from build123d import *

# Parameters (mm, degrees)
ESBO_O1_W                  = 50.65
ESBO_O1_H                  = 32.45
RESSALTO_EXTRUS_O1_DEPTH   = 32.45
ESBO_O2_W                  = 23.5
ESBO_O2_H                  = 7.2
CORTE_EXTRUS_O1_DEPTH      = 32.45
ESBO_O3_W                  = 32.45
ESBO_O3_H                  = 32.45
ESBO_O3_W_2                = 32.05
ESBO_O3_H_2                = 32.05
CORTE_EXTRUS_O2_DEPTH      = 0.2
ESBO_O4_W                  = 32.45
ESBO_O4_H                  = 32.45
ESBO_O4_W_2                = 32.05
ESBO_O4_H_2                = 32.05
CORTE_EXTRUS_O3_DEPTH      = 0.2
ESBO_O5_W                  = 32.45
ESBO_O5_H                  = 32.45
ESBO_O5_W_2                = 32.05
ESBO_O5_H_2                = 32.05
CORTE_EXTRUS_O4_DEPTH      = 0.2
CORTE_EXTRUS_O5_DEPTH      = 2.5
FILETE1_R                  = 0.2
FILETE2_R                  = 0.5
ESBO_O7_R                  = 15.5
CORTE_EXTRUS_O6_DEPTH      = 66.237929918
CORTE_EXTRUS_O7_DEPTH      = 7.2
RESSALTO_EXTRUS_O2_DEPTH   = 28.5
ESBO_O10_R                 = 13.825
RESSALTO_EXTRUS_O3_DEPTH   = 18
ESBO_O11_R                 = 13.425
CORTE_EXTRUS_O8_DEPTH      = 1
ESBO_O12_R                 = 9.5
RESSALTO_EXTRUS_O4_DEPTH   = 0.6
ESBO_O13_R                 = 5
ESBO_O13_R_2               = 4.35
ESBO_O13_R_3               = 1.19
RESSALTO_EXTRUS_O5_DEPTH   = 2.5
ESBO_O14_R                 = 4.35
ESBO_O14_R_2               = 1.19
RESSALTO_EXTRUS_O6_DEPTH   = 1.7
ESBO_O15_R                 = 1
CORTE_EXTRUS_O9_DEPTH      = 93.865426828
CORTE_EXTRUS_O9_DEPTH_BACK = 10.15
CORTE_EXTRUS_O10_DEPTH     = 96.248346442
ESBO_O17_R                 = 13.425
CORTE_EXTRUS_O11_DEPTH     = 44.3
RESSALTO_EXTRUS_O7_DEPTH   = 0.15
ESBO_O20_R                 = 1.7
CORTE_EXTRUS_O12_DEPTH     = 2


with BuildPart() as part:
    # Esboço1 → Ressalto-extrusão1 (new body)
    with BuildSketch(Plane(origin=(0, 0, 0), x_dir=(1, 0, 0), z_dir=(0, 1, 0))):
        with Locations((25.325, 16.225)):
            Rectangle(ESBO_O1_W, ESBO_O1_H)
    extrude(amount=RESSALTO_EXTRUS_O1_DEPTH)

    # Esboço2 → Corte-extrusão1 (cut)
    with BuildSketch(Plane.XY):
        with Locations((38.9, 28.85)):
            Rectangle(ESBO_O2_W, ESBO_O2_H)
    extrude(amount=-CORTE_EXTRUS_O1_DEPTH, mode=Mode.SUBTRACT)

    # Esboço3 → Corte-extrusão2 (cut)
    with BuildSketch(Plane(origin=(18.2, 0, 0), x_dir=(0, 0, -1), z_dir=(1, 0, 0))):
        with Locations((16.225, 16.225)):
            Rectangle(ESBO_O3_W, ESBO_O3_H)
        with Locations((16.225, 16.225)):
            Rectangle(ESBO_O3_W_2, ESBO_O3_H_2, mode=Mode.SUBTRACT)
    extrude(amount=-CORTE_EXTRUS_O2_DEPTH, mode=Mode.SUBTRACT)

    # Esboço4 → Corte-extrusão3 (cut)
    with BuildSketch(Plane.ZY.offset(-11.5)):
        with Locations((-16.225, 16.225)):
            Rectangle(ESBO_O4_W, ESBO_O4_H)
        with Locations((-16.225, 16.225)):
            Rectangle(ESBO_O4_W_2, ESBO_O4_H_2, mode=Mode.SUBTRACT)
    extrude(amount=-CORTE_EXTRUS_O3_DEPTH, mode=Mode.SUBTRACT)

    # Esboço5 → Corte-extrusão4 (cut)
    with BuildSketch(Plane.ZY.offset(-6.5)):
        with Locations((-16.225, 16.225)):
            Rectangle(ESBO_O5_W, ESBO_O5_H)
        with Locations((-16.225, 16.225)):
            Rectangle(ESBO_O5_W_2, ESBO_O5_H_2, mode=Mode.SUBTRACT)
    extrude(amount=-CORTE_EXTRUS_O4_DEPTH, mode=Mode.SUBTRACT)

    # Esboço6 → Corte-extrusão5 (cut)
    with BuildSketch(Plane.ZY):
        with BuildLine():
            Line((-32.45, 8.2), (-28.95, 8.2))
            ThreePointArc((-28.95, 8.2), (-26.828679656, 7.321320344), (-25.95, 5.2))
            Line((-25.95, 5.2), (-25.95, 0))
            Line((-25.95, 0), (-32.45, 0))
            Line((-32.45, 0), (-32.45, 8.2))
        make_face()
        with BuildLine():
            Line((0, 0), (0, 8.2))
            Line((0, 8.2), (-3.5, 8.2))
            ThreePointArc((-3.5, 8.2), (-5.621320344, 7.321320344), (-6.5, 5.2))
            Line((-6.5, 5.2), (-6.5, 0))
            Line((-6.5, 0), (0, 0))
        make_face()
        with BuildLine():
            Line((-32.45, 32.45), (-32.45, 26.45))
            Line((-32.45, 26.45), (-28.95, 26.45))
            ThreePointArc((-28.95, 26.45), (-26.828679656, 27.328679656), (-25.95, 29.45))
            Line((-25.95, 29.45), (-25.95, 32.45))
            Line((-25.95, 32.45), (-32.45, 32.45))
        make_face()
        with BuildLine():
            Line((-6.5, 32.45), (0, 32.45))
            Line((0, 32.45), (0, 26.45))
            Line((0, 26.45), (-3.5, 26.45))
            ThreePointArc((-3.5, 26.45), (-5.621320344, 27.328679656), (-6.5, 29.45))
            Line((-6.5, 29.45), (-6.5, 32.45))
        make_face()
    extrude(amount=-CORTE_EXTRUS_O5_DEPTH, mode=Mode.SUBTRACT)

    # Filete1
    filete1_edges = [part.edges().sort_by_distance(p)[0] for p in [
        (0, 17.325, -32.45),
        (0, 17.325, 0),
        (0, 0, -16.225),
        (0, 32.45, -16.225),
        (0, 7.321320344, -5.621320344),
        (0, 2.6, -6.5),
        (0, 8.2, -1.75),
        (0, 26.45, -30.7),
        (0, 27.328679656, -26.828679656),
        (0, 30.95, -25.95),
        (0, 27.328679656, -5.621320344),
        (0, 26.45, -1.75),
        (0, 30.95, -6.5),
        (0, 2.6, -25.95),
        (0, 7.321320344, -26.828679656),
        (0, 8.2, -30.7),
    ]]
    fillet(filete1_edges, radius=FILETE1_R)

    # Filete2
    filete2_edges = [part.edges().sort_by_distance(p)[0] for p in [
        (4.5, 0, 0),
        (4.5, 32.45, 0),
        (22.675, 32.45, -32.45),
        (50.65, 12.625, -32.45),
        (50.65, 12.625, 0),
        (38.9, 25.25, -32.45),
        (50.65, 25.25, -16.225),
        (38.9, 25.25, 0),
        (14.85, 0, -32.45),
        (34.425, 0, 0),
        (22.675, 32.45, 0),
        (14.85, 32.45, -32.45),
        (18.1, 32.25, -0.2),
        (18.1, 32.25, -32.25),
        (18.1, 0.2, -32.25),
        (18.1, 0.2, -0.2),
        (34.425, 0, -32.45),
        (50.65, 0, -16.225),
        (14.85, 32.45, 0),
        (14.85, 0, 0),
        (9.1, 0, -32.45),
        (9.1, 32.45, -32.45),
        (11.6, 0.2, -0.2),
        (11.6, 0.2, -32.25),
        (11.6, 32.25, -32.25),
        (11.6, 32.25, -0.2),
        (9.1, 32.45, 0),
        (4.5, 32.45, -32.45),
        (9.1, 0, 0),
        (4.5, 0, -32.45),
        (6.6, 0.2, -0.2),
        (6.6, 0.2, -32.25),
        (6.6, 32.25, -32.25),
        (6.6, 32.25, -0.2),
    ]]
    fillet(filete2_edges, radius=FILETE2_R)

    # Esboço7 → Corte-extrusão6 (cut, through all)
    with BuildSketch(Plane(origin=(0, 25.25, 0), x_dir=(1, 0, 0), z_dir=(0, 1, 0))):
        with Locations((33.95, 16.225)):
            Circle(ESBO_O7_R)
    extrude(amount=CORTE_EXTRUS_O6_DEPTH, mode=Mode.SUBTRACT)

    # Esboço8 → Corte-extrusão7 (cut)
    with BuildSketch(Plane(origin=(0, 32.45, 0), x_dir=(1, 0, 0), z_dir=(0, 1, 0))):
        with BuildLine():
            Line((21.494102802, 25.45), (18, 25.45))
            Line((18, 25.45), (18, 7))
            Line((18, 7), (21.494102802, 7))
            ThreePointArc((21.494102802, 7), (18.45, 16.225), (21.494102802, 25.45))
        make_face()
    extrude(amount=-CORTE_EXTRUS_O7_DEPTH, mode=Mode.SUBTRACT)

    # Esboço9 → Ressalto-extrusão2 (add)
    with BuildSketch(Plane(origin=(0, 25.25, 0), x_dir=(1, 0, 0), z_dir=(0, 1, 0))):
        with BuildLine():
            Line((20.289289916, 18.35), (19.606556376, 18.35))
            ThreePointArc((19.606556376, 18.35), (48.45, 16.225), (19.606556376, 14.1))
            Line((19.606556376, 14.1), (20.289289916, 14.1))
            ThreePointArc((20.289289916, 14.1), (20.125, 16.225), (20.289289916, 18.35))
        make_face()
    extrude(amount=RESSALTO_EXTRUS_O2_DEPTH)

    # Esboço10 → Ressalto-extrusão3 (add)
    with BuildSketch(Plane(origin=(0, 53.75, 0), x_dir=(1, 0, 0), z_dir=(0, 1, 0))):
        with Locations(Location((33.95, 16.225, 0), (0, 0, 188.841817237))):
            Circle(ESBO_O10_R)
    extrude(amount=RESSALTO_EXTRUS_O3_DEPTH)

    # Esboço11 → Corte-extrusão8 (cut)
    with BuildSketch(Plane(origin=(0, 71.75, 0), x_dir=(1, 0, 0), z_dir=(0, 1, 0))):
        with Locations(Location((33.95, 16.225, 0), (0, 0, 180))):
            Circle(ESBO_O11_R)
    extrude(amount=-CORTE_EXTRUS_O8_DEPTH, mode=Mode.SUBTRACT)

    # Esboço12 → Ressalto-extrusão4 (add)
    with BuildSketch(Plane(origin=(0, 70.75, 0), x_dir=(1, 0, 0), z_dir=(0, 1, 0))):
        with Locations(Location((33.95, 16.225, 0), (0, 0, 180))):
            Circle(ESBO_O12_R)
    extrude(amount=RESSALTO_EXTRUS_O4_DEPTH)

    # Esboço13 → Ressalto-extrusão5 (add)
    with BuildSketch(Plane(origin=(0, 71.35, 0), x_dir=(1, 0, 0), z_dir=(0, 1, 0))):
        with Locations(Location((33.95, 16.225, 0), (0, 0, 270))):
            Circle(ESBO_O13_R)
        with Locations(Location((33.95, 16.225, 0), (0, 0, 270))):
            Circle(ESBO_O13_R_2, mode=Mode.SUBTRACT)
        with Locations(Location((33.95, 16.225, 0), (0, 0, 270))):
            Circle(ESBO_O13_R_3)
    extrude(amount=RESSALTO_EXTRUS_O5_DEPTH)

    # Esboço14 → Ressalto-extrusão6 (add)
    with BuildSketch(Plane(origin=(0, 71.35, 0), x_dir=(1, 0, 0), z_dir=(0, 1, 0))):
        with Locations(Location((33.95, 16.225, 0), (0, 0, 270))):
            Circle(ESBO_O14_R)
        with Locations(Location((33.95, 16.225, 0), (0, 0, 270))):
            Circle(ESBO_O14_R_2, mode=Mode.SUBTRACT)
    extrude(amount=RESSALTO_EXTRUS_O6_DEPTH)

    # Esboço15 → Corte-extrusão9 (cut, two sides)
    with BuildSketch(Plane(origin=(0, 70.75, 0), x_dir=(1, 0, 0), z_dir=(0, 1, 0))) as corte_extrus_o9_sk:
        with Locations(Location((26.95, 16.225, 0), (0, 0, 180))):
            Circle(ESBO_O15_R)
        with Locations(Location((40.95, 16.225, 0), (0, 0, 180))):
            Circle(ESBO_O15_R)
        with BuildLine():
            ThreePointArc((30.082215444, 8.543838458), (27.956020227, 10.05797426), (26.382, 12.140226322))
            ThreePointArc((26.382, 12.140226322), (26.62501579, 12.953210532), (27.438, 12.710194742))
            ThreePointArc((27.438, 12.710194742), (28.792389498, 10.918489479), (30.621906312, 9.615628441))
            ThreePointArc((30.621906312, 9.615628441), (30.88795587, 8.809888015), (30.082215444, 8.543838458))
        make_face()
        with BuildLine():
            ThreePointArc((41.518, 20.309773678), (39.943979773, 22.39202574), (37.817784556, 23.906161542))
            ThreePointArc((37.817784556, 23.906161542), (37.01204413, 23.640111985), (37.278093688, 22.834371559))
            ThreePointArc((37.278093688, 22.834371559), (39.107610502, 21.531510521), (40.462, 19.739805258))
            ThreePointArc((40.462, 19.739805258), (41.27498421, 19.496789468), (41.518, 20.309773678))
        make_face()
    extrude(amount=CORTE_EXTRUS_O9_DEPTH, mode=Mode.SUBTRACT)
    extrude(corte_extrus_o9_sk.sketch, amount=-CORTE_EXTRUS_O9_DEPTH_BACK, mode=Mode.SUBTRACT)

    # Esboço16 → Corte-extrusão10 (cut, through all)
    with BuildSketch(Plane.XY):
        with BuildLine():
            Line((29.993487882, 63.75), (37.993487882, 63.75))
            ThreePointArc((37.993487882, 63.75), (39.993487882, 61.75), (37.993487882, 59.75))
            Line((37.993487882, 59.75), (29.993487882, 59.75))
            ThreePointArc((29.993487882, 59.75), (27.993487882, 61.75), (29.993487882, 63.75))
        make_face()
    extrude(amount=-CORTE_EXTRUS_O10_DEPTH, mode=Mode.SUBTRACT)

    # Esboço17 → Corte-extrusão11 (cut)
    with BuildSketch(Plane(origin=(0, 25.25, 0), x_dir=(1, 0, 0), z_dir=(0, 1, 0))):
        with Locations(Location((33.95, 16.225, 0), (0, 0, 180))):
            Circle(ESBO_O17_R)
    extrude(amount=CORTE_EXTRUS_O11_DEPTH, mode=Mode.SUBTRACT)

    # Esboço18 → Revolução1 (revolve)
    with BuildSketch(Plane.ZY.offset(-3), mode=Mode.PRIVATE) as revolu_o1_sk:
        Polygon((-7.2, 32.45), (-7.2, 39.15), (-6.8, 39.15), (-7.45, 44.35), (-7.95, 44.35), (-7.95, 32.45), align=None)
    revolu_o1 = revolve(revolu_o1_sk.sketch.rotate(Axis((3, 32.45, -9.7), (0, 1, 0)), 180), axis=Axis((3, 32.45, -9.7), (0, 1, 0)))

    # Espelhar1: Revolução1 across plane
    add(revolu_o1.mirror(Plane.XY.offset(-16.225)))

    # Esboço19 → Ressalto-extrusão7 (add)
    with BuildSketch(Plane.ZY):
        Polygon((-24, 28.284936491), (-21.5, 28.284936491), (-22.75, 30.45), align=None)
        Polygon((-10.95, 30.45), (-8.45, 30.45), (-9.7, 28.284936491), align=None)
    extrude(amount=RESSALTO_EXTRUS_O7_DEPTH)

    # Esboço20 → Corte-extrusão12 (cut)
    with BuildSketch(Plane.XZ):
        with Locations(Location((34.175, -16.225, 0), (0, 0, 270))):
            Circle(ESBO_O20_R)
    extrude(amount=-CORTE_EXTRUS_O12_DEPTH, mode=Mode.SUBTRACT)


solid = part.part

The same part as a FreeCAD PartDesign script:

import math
import FreeCAD as App
import Part
import Sketcher

V = App.Vector
Q = App.Units.Quantity


def edges_at(feature, points):
    """Names of the edges that pass closest to the given points."""
    edges = feature.Shape.Edges
    near = lambda p: min(range(len(edges)), key=lambda i: edges[i].distToShape(Part.Vertex(*p))[0])
    return sorted({f"Edge{near(p) + 1}" for p in points})

doc = App.newDocument("Part")
body = doc.addObject("PartDesign::Body", "Body")

# Sketch on XZ plane
sketch1 = body.newObject("Sketcher::SketchObject", "Sketch")
sketch1.AttachmentSupport = (doc.getObject("XZ_Plane"), [""])
sketch1.MapMode = "FlatFace"
sketch1.addGeometry([
    Part.LineSegment(V(0, -32, 0), V(0, 0, 0)),
    Part.LineSegment(V(0, 0, 0), V(51, 0, 0)),
    Part.LineSegment(V(51, 0, 0), V(51, -32, 0)),
    Part.LineSegment(V(51, -32, 0), V(0, -32, 0)),
], False)
sketch1.addConstraint([
    Sketcher.Constraint("Coincident", 0, 2, 1, 1),
    Sketcher.Constraint("Coincident", 1, 2, 2, 1),
    Sketcher.Constraint("Coincident", 2, 2, 3, 1),
    Sketcher.Constraint("Coincident", 3, 2, 0, 1),
    Sketcher.Constraint("Vertical", 0),
    Sketcher.Constraint("Horizontal", 1),
    Sketcher.Constraint("Vertical", 2),
    Sketcher.Constraint("Horizontal", 3),
    Sketcher.Constraint("Coincident", 0, 2, -1, 1),
    Sketcher.Constraint("DistanceX", 1, 1, 1, 2, Q("50.65 mm")),
    Sketcher.Constraint("DistanceY", 0, 1, 0, 2, Q("32.45 mm")),
])
pad1 = body.newObject("PartDesign::Pad", "Pad")
pad1.Profile = sketch1
pad1.Length = 32.45
pad1.Reversed = True

# Sketch on XY plane
sketch2 = body.newObject("Sketcher::SketchObject", "Sketch001")
sketch2.AttachmentSupport = (doc.getObject("XY_Plane"), [""])
sketch2.MapMode = "FlatFace"
sketch2.addGeometry([
    Part.LineSegment(V(27, 32, 0), V(27, 25, 0)),
    Part.LineSegment(V(27, 25, 0), V(51, 25, 0)),
    Part.LineSegment(V(51, 25, 0), V(51, 32, 0)),
    Part.LineSegment(V(51, 32, 0), V(27, 32, 0)),
], False)
sketch2.addConstraint([
    Sketcher.Constraint("Coincident", 0, 2, 1, 1),
    Sketcher.Constraint("Coincident", 1, 2, 2, 1),
    Sketcher.Constraint("Coincident", 2, 2, 3, 1),
    Sketcher.Constraint("Coincident", 3, 2, 0, 1),
    Sketcher.Constraint("Vertical", 0),
    Sketcher.Constraint("Horizontal", 1),
    Sketcher.Constraint("Vertical", 2),
    Sketcher.Constraint("Horizontal", 3),
    Sketcher.Constraint("DistanceX", 1, 1, 1, 2, Q("23.5 mm")),
    Sketcher.Constraint("DistanceY", 0, 2, 0, 1, Q("7.2 mm")),
    Sketcher.Constraint("DistanceX", -1, 1, 0, 2, Q("27.15 mm")),
    Sketcher.Constraint("DistanceY", -1, 1, 0, 2, Q("25.25 mm")),
])
pocket1 = body.newObject("PartDesign::Pocket", "Pocket")
pocket1.Profile = sketch2
pocket1.Length = 32.45

# Sketch on YZ plane
sketch3 = body.newObject("Sketcher::SketchObject", "Sketch002")
sketch3.AttachmentSupport = (doc.getObject("YZ_Plane"), [""])
sketch3.MapMode = "FlatFace"
sketch3.AttachmentOffset = App.Placement(V(0, 0, 18.2), App.Rotation())
sketch3.addGeometry([
    Part.LineSegment(V(32, 0, 0), V(0, 0, 0)),  # 0
    Part.LineSegment(V(0, 0, 0), V(0, -32, 0)),  # 1
    Part.LineSegment(V(0, -32, 0), V(32, -32, 0)),  # 2
    Part.LineSegment(V(32, -32, 0), V(32, 0, 0)),  # 3
    Part.LineSegment(V(0, -32, 0), V(0, 0, 0)),  # 4
    Part.LineSegment(V(0, 0, 0), V(32, 0, 0)),  # 5
    Part.LineSegment(V(32, 0, 0), V(32, -32, 0)),  # 6
    Part.LineSegment(V(32, -32, 0), V(0, -32, 0)),  # 7
], False)
sketch3.addConstraint([
    Sketcher.Constraint("Coincident", 0, 2, 1, 1),
    Sketcher.Constraint("Coincident", 1, 2, 2, 1),
    Sketcher.Constraint("Coincident", 2, 2, 3, 1),
    Sketcher.Constraint("Coincident", 3, 2, 0, 1),
    Sketcher.Constraint("Coincident", 4, 2, 5, 1),
    Sketcher.Constraint("Coincident", 5, 2, 6, 1),
    Sketcher.Constraint("Coincident", 6, 2, 7, 1),
    Sketcher.Constraint("Coincident", 7, 2, 4, 1),
    Sketcher.Constraint("Horizontal", 0),
    Sketcher.Constraint("Vertical", 1),
    Sketcher.Constraint("Horizontal", 2),
    Sketcher.Constraint("Vertical", 3),
    Sketcher.Constraint("Vertical", 4),
    Sketcher.Constraint("Horizontal", 5),
    Sketcher.Constraint("Vertical", 6),
    Sketcher.Constraint("Horizontal", 7),
    Sketcher.Constraint("Coincident", 0, 2, -1, 1),
    Sketcher.Constraint("Equal", 2, 1),
    Sketcher.Constraint("Equal", 7, 4),
    Sketcher.Constraint("DistanceX", 0, 2, 0, 1, Q("32.45 mm")),
    Sketcher.Constraint("DistanceX", 5, 1, 5, 2, Q("32.05 mm")),
    Sketcher.Constraint("DistanceX", -1, 1, 4, 2, Q("0.2 mm")),
    Sketcher.Constraint("DistanceY", 4, 2, -1, 1, Q("0.2 mm")),
])
pocket2 = body.newObject("PartDesign::Pocket", "Pocket001")
pocket2.Profile = sketch3
pocket2.Length = 0.2

# Sketch on YZ plane
sketch4 = body.newObject("Sketcher::SketchObject", "Sketch003")
sketch4.AttachmentSupport = (doc.getObject("YZ_Plane"), [""])
sketch4.MapMode = "FlatFace"
sketch4.AttachmentOffset = App.Placement(V(0, 0, 11.5), App.Rotation())
sketch4.addGeometry([
    Part.LineSegment(V(32, -32, 0), V(0, -32, 0)),  # 0
    Part.LineSegment(V(0, -32, 0), V(0, 0, 0)),  # 1
    Part.LineSegment(V(0, 0, 0), V(32, 0, 0)),  # 2
    Part.LineSegment(V(32, 0, 0), V(32, -32, 0)),  # 3
    Part.LineSegment(V(0, 0, 0), V(0, -32, 0)),  # 4
    Part.LineSegment(V(0, -32, 0), V(32, -32, 0)),  # 5
    Part.LineSegment(V(32, -32, 0), V(32, 0, 0)),  # 6
    Part.LineSegment(V(32, 0, 0), V(0, 0, 0)),  # 7
], False)
sketch4.addConstraint([
    Sketcher.Constraint("Coincident", 0, 2, 1, 1),
    Sketcher.Constraint("Coincident", 1, 2, 2, 1),
    Sketcher.Constraint("Coincident", 2, 2, 3, 1),
    Sketcher.Constraint("Coincident", 3, 2, 0, 1),
    Sketcher.Constraint("Coincident", 4, 2, 5, 1),
    Sketcher.Constraint("Coincident", 5, 2, 6, 1),
    Sketcher.Constraint("Coincident", 6, 2, 7, 1),
    Sketcher.Constraint("Coincident", 7, 2, 4, 1),
    Sketcher.Constraint("Horizontal", 0),
    Sketcher.Constraint("Vertical", 1),
    Sketcher.Constraint("Horizontal", 2),
    Sketcher.Constraint("Vertical", 3),
    Sketcher.Constraint("Vertical", 4),
    Sketcher.Constraint("Horizontal", 5),
    Sketcher.Constraint("Vertical", 6),
    Sketcher.Constraint("Horizontal", 7),
    Sketcher.Constraint("Coincident", 1, 2, -1, 1),
    Sketcher.Constraint("Equal", 2, 1),
    Sketcher.Constraint("Equal", 7, 4),
    Sketcher.Constraint("DistanceX", 0, 2, 0, 1, Q("32.45 mm")),
    Sketcher.Constraint("DistanceX", 5, 1, 5, 2, Q("32.05 mm")),
    Sketcher.Constraint("DistanceX", -1, 1, 4, 2, Q("0.2 mm")),
    Sketcher.Constraint("DistanceY", 6, 2, -1, 1, Q("0.2 mm")),
])
pocket3 = body.newObject("PartDesign::Pocket", "Pocket002")
pocket3.Profile = sketch4
pocket3.Length = 0.2
pocket3.Reversed = True

# Sketch on YZ plane
sketch5 = body.newObject("Sketcher::SketchObject", "Sketch004")
sketch5.AttachmentSupport = (doc.getObject("YZ_Plane"), [""])
sketch5.MapMode = "FlatFace"
sketch5.AttachmentOffset = App.Placement(V(0, 0, 6.5), App.Rotation())
sketch5.addGeometry([
    Part.LineSegment(V(32, -32, 0), V(0, -32, 0)),  # 0
    Part.LineSegment(V(0, -32, 0), V(0, 0, 0)),  # 1
    Part.LineSegment(V(0, 0, 0), V(32, 0, 0)),  # 2
    Part.LineSegment(V(32, 0, 0), V(32, -32, 0)),  # 3
    Part.LineSegment(V(0, 0, 0), V(0, -32, 0)),  # 4
    Part.LineSegment(V(0, -32, 0), V(32, -32, 0)),  # 5
    Part.LineSegment(V(32, -32, 0), V(32, 0, 0)),  # 6
    Part.LineSegment(V(32, 0, 0), V(0, 0, 0)),  # 7
], False)
sketch5.addConstraint([
    Sketcher.Constraint("Coincident", 0, 2, 1, 1),
    Sketcher.Constraint("Coincident", 1, 2, 2, 1),
    Sketcher.Constraint("Coincident", 2, 2, 3, 1),
    Sketcher.Constraint("Coincident", 3, 2, 0, 1),
    Sketcher.Constraint("Coincident", 4, 2, 5, 1),
    Sketcher.Constraint("Coincident", 5, 2, 6, 1),
    Sketcher.Constraint("Coincident", 6, 2, 7, 1),
    Sketcher.Constraint("Coincident", 7, 2, 4, 1),
    Sketcher.Constraint("Horizontal", 0),
    Sketcher.Constraint("Vertical", 1),
    Sketcher.Constraint("Horizontal", 2),
    Sketcher.Constraint("Vertical", 3),
    Sketcher.Constraint("Vertical", 4),
    Sketcher.Constraint("Horizontal", 5),
    Sketcher.Constraint("Vertical", 6),
    Sketcher.Constraint("Horizontal", 7),
    Sketcher.Constraint("Coincident", 1, 2, -1, 1),
    Sketcher.Constraint("Equal", 2, 1),
    Sketcher.Constraint("Equal", 7, 4),
    Sketcher.Constraint("DistanceX", 0, 2, 0, 1, Q("32.45 mm")),
    Sketcher.Constraint("DistanceX", 5, 1, 5, 2, Q("32.05 mm")),
    Sketcher.Constraint("DistanceX", -1, 1, 4, 2, Q("0.2 mm")),
    Sketcher.Constraint("DistanceY", 6, 2, -1, 1, Q("0.2 mm")),
])
pocket4 = body.newObject("PartDesign::Pocket", "Pocket003")
pocket4.Profile = sketch5
pocket4.Length = 0.2
pocket4.Reversed = True

# Sketch on YZ plane
sketch6 = body.newObject("Sketcher::SketchObject", "Sketch005")
sketch6.AttachmentSupport = (doc.getObject("YZ_Plane"), [""])
sketch6.MapMode = "FlatFace"
sketch6.addGeometry([
    Part.LineSegment(V(8.2, -28.9, 0), V(8.2, -32.5, 0)),  # 0
    Part.LineSegment(V(8.2, -32.5, 0), V(0, -32.5, 0)),  # 1
    Part.LineSegment(V(0, -32.5, 0), V(0, -25.9, 0)),  # 2
    Part.LineSegment(V(0, -25.9, 0), V(5.2, -25.9, 0)),  # 3
    Part.ArcOfCircle(Part.Circle(V(5.2, -28.9, 0), V(0, 0, 1), 3), math.radians(0), math.radians(90)),  # 4
    Part.LineSegment(V(0, 0, 0), V(8.2, 0, 0)),  # 5
    Part.LineSegment(V(8.2, 0, 0), V(8.2, -3.5, 0)),  # 6
    Part.ArcOfCircle(Part.Circle(V(5.2, -3.5, 0), V(0, 0, 1), 3), math.radians(-90), math.radians(0)),  # 7
    Part.LineSegment(V(5.2, -6.5, 0), V(0, -6.5, 0)),  # 8
    Part.LineSegment(V(0, -6.5, 0), V(0, 0, 0)),  # 9
    Part.LineSegment(V(32.5, -32.5, 0), V(26.4, -32.5, 0)),  # 10
    Part.LineSegment(V(26.4, -32.5, 0), V(26.4, -28.9, 0)),  # 11
    Part.ArcOfCircle(Part.Circle(V(29.4, -28.9, 0), V(0, 0, 1), 3), math.radians(90), math.radians(180)),  # 12
    Part.LineSegment(V(29.4, -25.9, 0), V(32.5, -25.9, 0)),  # 13
    Part.LineSegment(V(32.5, -25.9, 0), V(32.5, -32.5, 0)),  # 14
    Part.LineSegment(V(32.5, 0, 0), V(32.5, -6.5, 0)),  # 15
    Part.LineSegment(V(32.5, -6.5, 0), V(29.4, -6.5, 0)),  # 16
    Part.ArcOfCircle(Part.Circle(V(29.4, -3.5, 0), V(0, 0, 1), 3), math.radians(180), math.radians(270)),  # 17
    Part.LineSegment(V(26.4, -3.5, 0), V(26.4, 0, 0)),  # 18
    Part.LineSegment(V(26.4, 0, 0), V(32.5, 0, 0)),  # 19
], False)
sketch6.addConstraint([
    Sketcher.Constraint("Coincident", 0, 2, 1, 1),
    Sketcher.Constraint("Coincident", 1, 2, 2, 1),
    Sketcher.Constraint("Coincident", 2, 2, 3, 1),
    Sketcher.Constraint("Tangent", 3, 2, 4, 2),
    Sketcher.Constraint("Tangent", 4, 1, 0, 1),
    Sketcher.Constraint("Coincident", 5, 2, 6, 1),
    Sketcher.Constraint("Tangent", 6, 2, 7, 2),
    Sketcher.Constraint("Tangent", 7, 1, 8, 1),
    Sketcher.Constraint("Coincident", 8, 2, 9, 1),
    Sketcher.Constraint("Coincident", 9, 2, 5, 1),
    Sketcher.Constraint("Coincident", 10, 2, 11, 1),
    Sketcher.Constraint("Tangent", 11, 2, 12, 2),
    Sketcher.Constraint("Tangent", 12, 1, 13, 1),
    Sketcher.Constraint("Coincident", 13, 2, 14, 1),
    Sketcher.Constraint("Coincident", 14, 2, 10, 1),
    Sketcher.Constraint("Coincident", 15, 2, 16, 1),
    Sketcher.Constraint("Tangent", 16, 2, 17, 2),
    Sketcher.Constraint("Tangent", 17, 1, 18, 1),
    Sketcher.Constraint("Coincident", 18, 2, 19, 1),
    Sketcher.Constraint("Coincident", 19, 2, 15, 1),
    Sketcher.Constraint("Vertical", 0),
    Sketcher.Constraint("Horizontal", 1),
    Sketcher.Constraint("Vertical", 2),
    Sketcher.Constraint("Horizontal", 3),
    Sketcher.Constraint("Horizontal", 5),
    Sketcher.Constraint("Vertical", 6),
    Sketcher.Constraint("Horizontal", 8),
    Sketcher.Constraint("Vertical", 9),
    Sketcher.Constraint("Horizontal", 10),
    Sketcher.Constraint("Vertical", 11),
    Sketcher.Constraint("Horizontal", 13),
    Sketcher.Constraint("Vertical", 14),
    Sketcher.Constraint("Vertical", 15),
    Sketcher.Constraint("Horizontal", 16),
    Sketcher.Constraint("Vertical", 18),
    Sketcher.Constraint("Horizontal", 19),
    Sketcher.Constraint("Coincident", 9, 2, -1, 1),
    Sketcher.Constraint("Equal", 4, 7),
    Sketcher.Constraint("Equal", 7, 12),
    Sketcher.Constraint("Equal", 12, 17),
    Sketcher.Constraint("PointOnObject", 1, 2, -2),
    Sketcher.Constraint("PointOnObject", 18, 2, -1),
    Sketcher.Constraint("Horizontal", 4, 3, 12, 3),
    Sketcher.Constraint("Horizontal", 7, 3, 17, 3),
    Sketcher.Constraint("Horizontal", 1, 2, 10, 2),
    Sketcher.Constraint("Vertical", 4, 3, 7, 3),
    Sketcher.Constraint("Vertical", 12, 3, 17, 3),
    Sketcher.Constraint("Vertical", 14, 2, 15, 2),
    Sketcher.Constraint("Equal", 0, 6),
    Sketcher.Constraint("Radius", 4, Q("3 mm")),
    Sketcher.Constraint("DistanceX", 10, 2, 10, 1, Q("6 mm")),
    Sketcher.Constraint("DistanceX", 1, 2, 1, 1, Q("8.2 mm")),
    Sketcher.Constraint("DistanceY", 0, 2, 0, 1, Q("3.5 mm")),
    Sketcher.Constraint("DistanceY", 4, 3, -1, 1, Q("28.95 mm")),
    Sketcher.Constraint("DistanceX", -1, 1, 12, 3, Q("29.45 mm")),
])
pocket5 = body.newObject("PartDesign::Pocket", "Pocket004")
pocket5.Profile = sketch6
pocket5.Length = 2.5
pocket5.Reversed = True
doc.recompute()

fillet = body.newObject("PartDesign::Fillet", "Fillet")
fillet.Base = (pocket5, edges_at(pocket5, [
    (0, 17.325, -32.45),
    (0, 17.325, 0),
    (0, 0, -16.225),
    (0, 32.45, -16.225),
    (0, 7.321, -5.621),
    (0, 2.6, -6.5),
    (0, 8.2, -1.75),
    (0, 26.45, -30.7),
    (0, 27.329, -26.829),
    (0, 30.95, -25.95),
    (0, 27.329, -5.621),
    (0, 26.45, -1.75),
    (0, 30.95, -6.5),
    (0, 2.6, -25.95),
    (0, 7.321, -26.829),
    (0, 8.2, -30.7),
]))
fillet.Radius = 0.2
doc.recompute()

fillet2 = body.newObject("PartDesign::Fillet", "Fillet001")
fillet2.Base = (fillet, edges_at(fillet, [
    (4.5, 0, 0),
    (4.5, 32.45, 0),
    (22.675, 32.45, -32.45),
    (50.65, 12.625, -32.45),
    (50.65, 12.625, 0),
    (38.9, 25.25, -32.45),
    (50.65, 25.25, -16.225),
    (38.9, 25.25, 0),
    (14.85, 0, -32.45),
    (34.425, 0, 0),
    (22.675, 32.45, 0),
    (14.85, 32.45, -32.45),
    (18.1, 32.25, -0.2),
    (18.1, 32.25, -32.25),
    (18.1, 0.2, -32.25),
    (18.1, 0.2, -0.2),
    (34.425, 0, -32.45),
    (50.65, 0, -16.225),
    (14.85, 32.45, 0),
    (14.85, 0, 0),
    (9.1, 0, -32.45),
    (9.1, 32.45, -32.45),
    (11.6, 0.2, -0.2),
    (11.6, 0.2, -32.25),
    (11.6, 32.25, -32.25),
    (11.6, 32.25, -0.2),
    (9.1, 32.45, 0),
    (4.5, 32.45, -32.45),
    (9.1, 0, 0),
    (4.5, 0, -32.45),
    (6.6, 0.2, -0.2),
    (6.6, 0.2, -32.25),
    (6.6, 32.25, -32.25),
    (6.6, 32.25, -0.2),
]))
fillet2.Radius = 0.5

# Sketch on XZ plane
sketch7 = body.newObject("Sketcher::SketchObject", "Sketch006")
sketch7.AttachmentSupport = (doc.getObject("XZ_Plane"), [""])
sketch7.MapMode = "FlatFace"
sketch7.AttachmentOffset = App.Placement(V(0, 0, -25.25), App.Rotation())
sketch7.addGeometry(Part.Circle(V(34, -16, 0), V(0, 0, 1), 16), False)
sketch7.addConstraint([
    Sketcher.Constraint("Diameter", 0, Q("31 mm")),
    Sketcher.Constraint("DistanceX", -1, 1, 0, 3, Q("33.95 mm")),
    Sketcher.Constraint("DistanceY", 0, 3, -1, 1, Q("16.225 mm")),
])
pocket6 = body.newObject("PartDesign::Pocket", "Pocket005")
pocket6.Profile = sketch7
pocket6.Type = "ThroughAll"

# Sketch on XZ plane
sketch8 = body.newObject("Sketcher::SketchObject", "Sketch007")
sketch8.AttachmentSupport = (doc.getObject("XZ_Plane"), [""])
sketch8.MapMode = "FlatFace"
sketch8.AttachmentOffset = App.Placement(V(0, 0, -32.45), App.Rotation())
sketch8.addGeometry([
    Part.LineSegment(V(21.5, -25.4, 0), V(18, -25.4, 0)),
    Part.LineSegment(V(18, -25.4, 0), V(18, -7, 0)),
    Part.LineSegment(V(18, -7, 0), V(21.5, -7, 0)),
    Part.ArcOfCircle(Part.Circle(V(34, -16.2, 0), V(0, 0, 1), 15.5), math.radians(143), math.radians(217)),
], False)
sketch8.addConstraint([
    Sketcher.Constraint("Coincident", 0, 2, 1, 1),
    Sketcher.Constraint("Coincident", 1, 2, 2, 1),
    Sketcher.Constraint("Coincident", 2, 2, 3, 1),
    Sketcher.Constraint("Coincident", 3, 2, 0, 1),
    Sketcher.Constraint("Horizontal", 0),
    Sketcher.Constraint("Vertical", 1),
    Sketcher.Constraint("Horizontal", 2),
    Sketcher.Constraint("Vertical", 2, 2, 3, 2),
    Sketcher.Constraint("Radius", 3, Q("15.5 mm")),
    Sketcher.Constraint("DistanceX", -1, 1, 0, 2, Q("18 mm")),
    Sketcher.Constraint("DistanceY", 1, 2, -1, 1, Q("7 mm")),
    Sketcher.Constraint("DistanceY", 1, 1, 1, 2, Q("18.45 mm")),
    Sketcher.Constraint("DistanceX", -1, 1, 3, 3, Q("33.95 mm")),
])
pocket7 = body.newObject("PartDesign::Pocket", "Pocket006")
pocket7.Profile = sketch8
pocket7.Length = 7.2
pocket7.Reversed = True

# Sketch on XZ plane
sketch9 = body.newObject("Sketcher::SketchObject", "Sketch008")
sketch9.AttachmentSupport = (doc.getObject("XZ_Plane"), [""])
sketch9.MapMode = "FlatFace"
sketch9.AttachmentOffset = App.Placement(V(0, 0, -25.25), App.Rotation())
sketch9.addGeometry([
    Part.LineSegment(V(19.6, -18.4, 0), V(20.3, -18.4, 0)),
    Part.ArcOfCircle(Part.Circle(V(33.9, -16.2, 0), V(0, 0, 1), 13.8), math.radians(171.16), math.radians(188.84)),
    Part.LineSegment(V(20.3, -14.1, 0), V(19.6, -14.1, 0)),
    Part.ArcOfCircle(Part.Circle(V(34, -16.2, 0), V(0, 0, 1), 14.5), math.radians(-172), math.radians(172)),
], False)
sketch9.addConstraint([
    Sketcher.Constraint("Coincident", 0, 2, 1, 2),
    Sketcher.Constraint("Coincident", 1, 1, 2, 1),
    Sketcher.Constraint("Coincident", 2, 2, 3, 2),
    Sketcher.Constraint("Coincident", 3, 1, 0, 1),
    Sketcher.Constraint("Horizontal", 0),
    Sketcher.Constraint("Horizontal", 2),
    Sketcher.Constraint("Coincident", 3, 3, 1, 3),
    Sketcher.Constraint("Vertical", 0, 2, 1, 1),
    Sketcher.Constraint("Radius", 3, Q("14.5 mm")),
    Sketcher.Constraint("Radius", 1, Q("13.825 mm")),
    Sketcher.Constraint("DistanceY", 1, 1, -1, 1, Q("14.1 mm")),
    Sketcher.Constraint("DistanceX", -1, 1, 1, 3, Q("33.95 mm")),
    Sketcher.Constraint("DistanceY", 0, 2, -1, 1, Q("18.35 mm")),
])
pad2 = body.newObject("PartDesign::Pad", "Pad001")
pad2.Profile = sketch9
pad2.Length = 28.5
pad2.Reversed = True

# Sketch on XZ plane
sketch10 = body.newObject("Sketcher::SketchObject", "Sketch009")
sketch10.AttachmentSupport = (doc.getObject("XZ_Plane"), [""])
sketch10.MapMode = "FlatFace"
sketch10.AttachmentOffset = App.Placement(V(0, 0, -53.75), App.Rotation())
sketch10.addGeometry(Part.Circle(V(34, -16, 0), V(0, 0, 1), 14), False)
sketch10.addConstraint([
    Sketcher.Constraint("Diameter", 0, Q("27.65 mm")),
    Sketcher.Constraint("DistanceX", -1, 1, 0, 3, Q("33.95 mm")),
    Sketcher.Constraint("DistanceY", 0, 3, -1, 1, Q("16.225 mm")),
])
pad3 = body.newObject("PartDesign::Pad", "Pad002")
pad3.Profile = sketch10
pad3.Length = 18
pad3.Reversed = True

# Sketch on XZ plane
sketch11 = body.newObject("Sketcher::SketchObject", "Sketch010")
sketch11.AttachmentSupport = (doc.getObject("XZ_Plane"), [""])
sketch11.MapMode = "FlatFace"
sketch11.AttachmentOffset = App.Placement(V(0, 0, -71.75), App.Rotation())
sketch11.addGeometry(Part.Circle(V(34, -16, 0), V(0, 0, 1), 13), False)
sketch11.addConstraint([
    Sketcher.Constraint("Diameter", 0, Q("26.85 mm")),
    Sketcher.Constraint("DistanceX", -1, 1, 0, 3, Q("33.95 mm")),
    Sketcher.Constraint("DistanceY", 0, 3, -1, 1, Q("16.225 mm")),
])
pocket8 = body.newObject("PartDesign::Pocket", "Pocket007")
pocket8.Profile = sketch11
pocket8.Length = 1
pocket8.Reversed = True

# Sketch on XZ plane
sketch12 = body.newObject("Sketcher::SketchObject", "Sketch011")
sketch12.AttachmentSupport = (doc.getObject("XZ_Plane"), [""])
sketch12.MapMode = "FlatFace"
sketch12.AttachmentOffset = App.Placement(V(0, 0, -70.75), App.Rotation())
sketch12.addGeometry(Part.Circle(V(34, -16, 0), V(0, 0, 1), 10), False)
sketch12.addConstraint([
    Sketcher.Constraint("Diameter", 0, Q("19 mm")),
    Sketcher.Constraint("DistanceX", -1, 1, 0, 3, Q("33.95 mm")),
    Sketcher.Constraint("DistanceY", 0, 3, -1, 1, Q("16.225 mm")),
])
pad4 = body.newObject("PartDesign::Pad", "Pad003")
pad4.Profile = sketch12
pad4.Length = 0.6
pad4.Reversed = True

# Sketch on XZ plane
sketch13 = body.newObject("Sketcher::SketchObject", "Sketch012")
sketch13.AttachmentSupport = (doc.getObject("XZ_Plane"), [""])
sketch13.MapMode = "FlatFace"
sketch13.AttachmentOffset = App.Placement(V(0, 0, -71.35), App.Rotation())
sketch13.addGeometry([
    Part.Circle(V(34, -16.2, 0), V(0, 0, 1), 5),
    Part.Circle(V(34, -16.2, 0), V(0, 0, 1), 4.3),
    Part.Circle(V(34, -16.2, 0), V(0, 0, 1), 1.2),
], False)
sketch13.addConstraint([
    Sketcher.Constraint("Coincident", 1, 3, 0, 3),
    Sketcher.Constraint("Coincident", 2, 3, 0, 3),
    Sketcher.Constraint("Diameter", 0, Q("10 mm")),
    Sketcher.Constraint("Diameter", 1, Q("8.7 mm")),
    Sketcher.Constraint("Diameter", 2, Q("2.38 mm")),
    Sketcher.Constraint("DistanceX", -1, 1, 0, 3, Q("33.95 mm")),
    Sketcher.Constraint("DistanceY", 0, 3, -1, 1, Q("16.225 mm")),
])
pad5 = body.newObject("PartDesign::Pad", "Pad004")
pad5.Profile = sketch13
pad5.Length = 2.5
pad5.Reversed = True

# Sketch on XZ plane
sketch14 = body.newObject("Sketcher::SketchObject", "Sketch013")
sketch14.AttachmentSupport = (doc.getObject("XZ_Plane"), [""])
sketch14.MapMode = "FlatFace"
sketch14.AttachmentOffset = App.Placement(V(0, 0, -71.35), App.Rotation())
sketch14.addGeometry([
    Part.Circle(V(34, -16.2, 0), V(0, 0, 1), 4.3),
    Part.Circle(V(34, -16.2, 0), V(0, 0, 1), 1.2),
], False)
sketch14.addConstraint([
    Sketcher.Constraint("Coincident", 1, 3, 0, 3),
    Sketcher.Constraint("Diameter", 0, Q("8.7 mm")),
    Sketcher.Constraint("Diameter", 1, Q("2.38 mm")),
    Sketcher.Constraint("DistanceX", -1, 1, 0, 3, Q("33.95 mm")),
    Sketcher.Constraint("DistanceY", 0, 3, -1, 1, Q("16.225 mm")),
])
pad6 = body.newObject("PartDesign::Pad", "Pad005")
pad6.Profile = sketch14
pad6.Length = 1.7
pad6.Reversed = True

# Sketch on XZ plane
sketch15 = body.newObject("Sketcher::SketchObject", "Sketch014")
sketch15.AttachmentSupport = (doc.getObject("XZ_Plane"), [""])
sketch15.MapMode = "FlatFace"
sketch15.AttachmentOffset = App.Placement(V(0, 0, -70.75), App.Rotation())
sketch15.addGeometry([
    Part.Circle(V(26.9, -16.2, 0), V(0, 0, 1), 1),  # 0
    Part.Circle(V(41, -16.2, 0), V(0, 0, 1), 1),  # 1
    Part.ArcOfCircle(Part.Circle(V(34, -16.2, 0), V(0, 0, 1), 8.6), math.radians(117), math.radians(152)),  # 2
    Part.ArcOfCircle(Part.Circle(V(30.4, -9.1, 0), V(0, 0, 1), 0.6), math.radians(-63), math.radians(117)),  # 3
    Part.ArcOfCircle(Part.Circle(V(34, -16.2, 0), V(0, 0, 1), 7.4), math.radians(117), math.radians(152)),  # 4
    Part.ArcOfCircle(Part.Circle(V(26.9, -12.4, 0), V(0, 0, 1), 0.6), math.radians(152), math.radians(332)),  # 5
    Part.ArcOfCircle(Part.Circle(V(33.9, -16.2, 0), V(0, 0, 1), 8.6), math.radians(-63), math.radians(-28)),  # 6
    Part.ArcOfCircle(Part.Circle(V(37.5, -23.4, 0), V(0, 0, 1), 0.6), math.radians(117), math.radians(297)),  # 7
    Part.ArcOfCircle(Part.Circle(V(33.9, -16.2, 0), V(0, 0, 1), 7.4), math.radians(-63), math.radians(-28)),  # 8
    Part.ArcOfCircle(Part.Circle(V(41, -20, 0), V(0, 0, 1), 0.6), math.radians(-28), math.radians(152)),  # 9
], False)
sketch15.addConstraint([
    Sketcher.Constraint("Tangent", 2, 1, 3, 2),
    Sketcher.Constraint("Tangent", 3, 1, 4, 1),
    Sketcher.Constraint("Tangent", 4, 2, 5, 2),
    Sketcher.Constraint("Tangent", 5, 1, 2, 2),
    Sketcher.Constraint("Tangent", 6, 1, 7, 2),
    Sketcher.Constraint("Tangent", 7, 1, 8, 1),
    Sketcher.Constraint("Tangent", 8, 2, 9, 2),
    Sketcher.Constraint("Tangent", 9, 1, 6, 2),
    Sketcher.Constraint("Coincident", 4, 3, 2, 3),
    Sketcher.Constraint("Coincident", 6, 3, 2, 3),
    Sketcher.Constraint("Coincident", 8, 3, 2, 3),
    Sketcher.Constraint("Equal", 0, 1),
    Sketcher.Constraint("Equal", 2, 6),
    Sketcher.Constraint("Equal", 5, 7),
    Sketcher.Constraint("Horizontal", 0, 3, 1, 3),
    Sketcher.Constraint("Horizontal", 1, 3, 2, 3),
    Sketcher.Constraint("Diameter", 0, Q("2 mm")),
    Sketcher.Constraint("Radius", 2, Q("8.6 mm")),
    Sketcher.Constraint("Radius", 3, Q("0.6 mm")),
    Sketcher.Constraint("DistanceX", 0, 3, 1, 3, Q("14 mm")),
    Sketcher.Constraint("DistanceX", 2, 3, 1, 3, Q("7 mm")),
    Sketcher.Constraint("DistanceX", -1, 1, 0, 3, Q("26.95 mm")),
    Sketcher.Constraint("DistanceX", -1, 1, 5, 3, Q("26.91 mm")),
    Sketcher.Constraint("DistanceX", -1, 1, 9, 3, Q("40.99 mm")),
    Sketcher.Constraint("DistanceY", 0, 3, -1, 1, Q("16.225 mm")),
    Sketcher.Constraint("DistanceX", -1, 1, 3, 3, Q("30.352061 mm")),
    Sketcher.Constraint("DistanceX", -1, 1, 7, 3, Q("37.547939 mm")),
])
pocket9 = body.newObject("PartDesign::Pocket", "Pocket008")
pocket9.Profile = sketch15
pocket9.Type = "TwoLengths"
pocket9.Length = 93.865427
pocket9.Length2 = 10.15

# Sketch on XY plane
sketch16 = body.newObject("Sketcher::SketchObject", "Sketch015")
sketch16.AttachmentSupport = (doc.getObject("XY_Plane"), [""])
sketch16.MapMode = "FlatFace"
sketch16.addGeometry([
    Part.LineSegment(V(38, 63.8, 0), V(30, 63.8, 0)),
    Part.ArcOfCircle(Part.Circle(V(30, 61.8, 0), V(0, 0, 1), 2), math.radians(90), math.radians(270)),
    Part.LineSegment(V(30, 59.8, 0), V(38, 59.8, 0)),
    Part.ArcOfCircle(Part.Circle(V(38, 61.8, 0), V(0, 0, 1), 2), math.radians(-90), math.radians(90)),
], False)
sketch16.addConstraint([
    Sketcher.Constraint("Tangent", 0, 2, 1, 1),
    Sketcher.Constraint("Tangent", 1, 2, 2, 1),
    Sketcher.Constraint("Tangent", 2, 2, 3, 1),
    Sketcher.Constraint("Tangent", 3, 2, 0, 1),
    Sketcher.Constraint("Horizontal", 0),
    Sketcher.Constraint("Horizontal", 2),
    Sketcher.Constraint("Radius", 1, Q("2 mm")),
    Sketcher.Constraint("DistanceX", 0, 2, 0, 1, Q("8 mm")),
    Sketcher.Constraint("DistanceY", -1, 1, 1, 3, Q("61.75 mm")),
    Sketcher.Constraint("DistanceX", -1, 1, 1, 3, Q("29.993488 mm")),
])
pocket10 = body.newObject("PartDesign::Pocket", "Pocket009")
pocket10.Profile = sketch16
pocket10.Type = "ThroughAll"

# Sketch on XZ plane
sketch17 = body.newObject("Sketcher::SketchObject", "Sketch016")
sketch17.AttachmentSupport = (doc.getObject("XZ_Plane"), [""])
sketch17.MapMode = "FlatFace"
sketch17.AttachmentOffset = App.Placement(V(0, 0, -25.25), App.Rotation())
sketch17.addGeometry(Part.Circle(V(34, -16, 0), V(0, 0, 1), 13), False)
sketch17.addConstraint([
    Sketcher.Constraint("Diameter", 0, Q("26.85 mm")),
    Sketcher.Constraint("DistanceX", -1, 1, 0, 3, Q("33.95 mm")),
    Sketcher.Constraint("DistanceY", 0, 3, -1, 1, Q("16.225 mm")),
])
pocket11 = body.newObject("PartDesign::Pocket", "Pocket010")
pocket11.Profile = sketch17
pocket11.Length = 44.3

# Sketch on YZ plane
sketch18 = body.newObject("Sketcher::SketchObject", "Sketch017")
sketch18.AttachmentSupport = (doc.getObject("YZ_Plane"), [""])
sketch18.MapMode = "FlatFace"
sketch18.AttachmentOffset = App.Placement(V(0, 0, 3), App.Rotation())
sketch18.addGeometry([
    Part.LineSegment(V(32.45, -7.2, 0), V(39.15, -7.2, 0)),  # 0
    Part.LineSegment(V(39.15, -7.2, 0), V(39.15, -6.8, 0)),  # 1
    Part.LineSegment(V(39.15, -6.8, 0), V(44.35, -7.45, 0)),  # 2
    Part.LineSegment(V(44.35, -7.45, 0), V(44.35, -7.95, 0)),  # 3
    Part.LineSegment(V(44.35, -7.95, 0), V(32.45, -7.95, 0)),  # 4
    Part.LineSegment(V(32.45, -7.95, 0), V(32.45, -7.2, 0)),  # 5
], False)
sketch18.addGeometry(Part.LineSegment(V(32.45, -9.7, 0), V(44.35, -9.7, 0)), True)  # axis
sketch18.addConstraint([
    Sketcher.Constraint("Coincident", 0, 2, 1, 1),
    Sketcher.Constraint("Coincident", 1, 2, 2, 1),
    Sketcher.Constraint("Coincident", 2, 2, 3, 1),
    Sketcher.Constraint("Coincident", 3, 2, 4, 1),
    Sketcher.Constraint("Coincident", 4, 2, 5, 1),
    Sketcher.Constraint("Coincident", 5, 2, 0, 1),
    Sketcher.Constraint("Horizontal", 0),
    Sketcher.Constraint("Vertical", 1),
    Sketcher.Constraint("Vertical", 3),
    Sketcher.Constraint("Horizontal", 4),
    Sketcher.Constraint("Vertical", 5),
    Sketcher.Constraint("Horizontal", 6),
    Sketcher.Constraint("Vertical", 5, 2, 6, 1),
    Sketcher.Constraint("Vertical", 3, 2, 6, 2),
    Sketcher.Constraint("DistanceX", 0, 1, 0, 2, Q("6.7 mm")),
    Sketcher.Constraint("DistanceX", 4, 2, 4, 1, Q("11.9 mm")),
    Sketcher.Constraint("DistanceY", 1, 1, 1, 2, Q("0.4 mm")),
    Sketcher.Constraint("DistanceY", 3, 2, 3, 1, Q("0.5 mm")),
    Sketcher.Constraint("DistanceY", 5, 1, 5, 2, Q("0.75 mm")),
    Sketcher.Constraint("DistanceY", 0, 2, -1, 1, Q("7.2 mm")),
    Sketcher.Constraint("DistanceY", 6, 1, -1, 1, Q("9.7 mm")),
    Sketcher.Constraint("DistanceX", -1, 1, 0, 2, Q("39.15 mm")),
])
revolution = body.newObject("PartDesign::Revolution", "Revolution")
revolution.Profile = sketch18
revolution.ReferenceAxis = (sketch18, ["Axis0"])
revolution.Angle = 360
doc.recompute()

datumplane = body.newObject("PartDesign::Plane", "DatumPlane")
datumplane.AttachmentSupport = (doc.getObject("XY_Plane"), [""])
datumplane.MapMode = "FlatFace"
datumplane.AttachmentOffset = App.Placement(V(0, 0, -16.225), App.Rotation())
mirrored = body.newObject("PartDesign::Mirrored", "Mirrored")
mirrored.Originals = [revolution]
mirrored.MirrorPlane = (datumplane, [""])
body.Tip = mirrored

# Sketch on YZ plane
sketch19 = body.newObject("Sketcher::SketchObject", "Sketch018")
sketch19.AttachmentSupport = (doc.getObject("YZ_Plane"), [""])
sketch19.MapMode = "FlatFace"
sketch19.addGeometry([
    Part.LineSegment(V(28.3, -24, 0), V(28.3, -21.5, 0)),  # 0
    Part.LineSegment(V(28.3, -21.5, 0), V(30.4, -22.8, 0)),  # 1
    Part.LineSegment(V(30.4, -22.8, 0), V(28.3, -24, 0)),  # 2
    Part.LineSegment(V(30.4, -8.4, 0), V(30.4, -10.9, 0)),  # 3
    Part.LineSegment(V(30.4, -10.9, 0), V(28.3, -9.7, 0)),  # 4
    Part.LineSegment(V(28.3, -9.7, 0), V(30.4, -8.4, 0)),  # 5
], False)
sketch19.addConstraint([
    Sketcher.Constraint("Coincident", 0, 2, 1, 1),
    Sketcher.Constraint("Coincident", 1, 2, 2, 1),
    Sketcher.Constraint("Coincident", 2, 2, 0, 1),
    Sketcher.Constraint("Coincident", 3, 2, 4, 1),
    Sketcher.Constraint("Coincident", 4, 2, 5, 1),
    Sketcher.Constraint("Coincident", 5, 2, 3, 1),
    Sketcher.Constraint("Vertical", 0),
    Sketcher.Constraint("Vertical", 3),
    Sketcher.Constraint("Parallel", 1, 4),
    Sketcher.Constraint("Parallel", 2, 5),
    Sketcher.Constraint("Vertical", 1, 2, 3, 2),
    Sketcher.Constraint("Vertical", 2, 2, 4, 2),
    Sketcher.Constraint("Equal", 1, 2),
    Sketcher.Constraint("Angle", 1, Q("-30 deg")),
    Sketcher.Constraint("DistanceY", 0, 1, 0, 2, Q("2.5 mm")),
    Sketcher.Constraint("DistanceY", 2, 2, -1, 1, Q("24 mm")),
    Sketcher.Constraint("DistanceY", 4, 2, -1, 1, Q("9.7 mm")),
    Sketcher.Constraint("DistanceX", -1, 1, 1, 2, Q("30.45 mm")),
])
pad7 = body.newObject("PartDesign::Pad", "Pad006")
pad7.Profile = sketch19
pad7.Length = 0.15
pad7.Reversed = True

# Sketch on XZ plane
sketch20 = body.newObject("Sketcher::SketchObject", "Sketch019")
sketch20.AttachmentSupport = (doc.getObject("XZ_Plane"), [""])
sketch20.MapMode = "FlatFace"
sketch20.addGeometry(Part.Circle(V(34.2, -16.2, 0), V(0, 0, 1), 1.7), False)
sketch20.addConstraint([
    Sketcher.Constraint("Diameter", 0, Q("3.4 mm")),
    Sketcher.Constraint("DistanceX", -1, 1, 0, 3, Q("34.175 mm")),
    Sketcher.Constraint("DistanceY", 0, 3, -1, 1, Q("16.225 mm")),
])
pocket12 = body.newObject("PartDesign::Pocket", "Pocket011")
pocket12.Profile = sketch20
pocket12.Length = 2

doc.recompute()
